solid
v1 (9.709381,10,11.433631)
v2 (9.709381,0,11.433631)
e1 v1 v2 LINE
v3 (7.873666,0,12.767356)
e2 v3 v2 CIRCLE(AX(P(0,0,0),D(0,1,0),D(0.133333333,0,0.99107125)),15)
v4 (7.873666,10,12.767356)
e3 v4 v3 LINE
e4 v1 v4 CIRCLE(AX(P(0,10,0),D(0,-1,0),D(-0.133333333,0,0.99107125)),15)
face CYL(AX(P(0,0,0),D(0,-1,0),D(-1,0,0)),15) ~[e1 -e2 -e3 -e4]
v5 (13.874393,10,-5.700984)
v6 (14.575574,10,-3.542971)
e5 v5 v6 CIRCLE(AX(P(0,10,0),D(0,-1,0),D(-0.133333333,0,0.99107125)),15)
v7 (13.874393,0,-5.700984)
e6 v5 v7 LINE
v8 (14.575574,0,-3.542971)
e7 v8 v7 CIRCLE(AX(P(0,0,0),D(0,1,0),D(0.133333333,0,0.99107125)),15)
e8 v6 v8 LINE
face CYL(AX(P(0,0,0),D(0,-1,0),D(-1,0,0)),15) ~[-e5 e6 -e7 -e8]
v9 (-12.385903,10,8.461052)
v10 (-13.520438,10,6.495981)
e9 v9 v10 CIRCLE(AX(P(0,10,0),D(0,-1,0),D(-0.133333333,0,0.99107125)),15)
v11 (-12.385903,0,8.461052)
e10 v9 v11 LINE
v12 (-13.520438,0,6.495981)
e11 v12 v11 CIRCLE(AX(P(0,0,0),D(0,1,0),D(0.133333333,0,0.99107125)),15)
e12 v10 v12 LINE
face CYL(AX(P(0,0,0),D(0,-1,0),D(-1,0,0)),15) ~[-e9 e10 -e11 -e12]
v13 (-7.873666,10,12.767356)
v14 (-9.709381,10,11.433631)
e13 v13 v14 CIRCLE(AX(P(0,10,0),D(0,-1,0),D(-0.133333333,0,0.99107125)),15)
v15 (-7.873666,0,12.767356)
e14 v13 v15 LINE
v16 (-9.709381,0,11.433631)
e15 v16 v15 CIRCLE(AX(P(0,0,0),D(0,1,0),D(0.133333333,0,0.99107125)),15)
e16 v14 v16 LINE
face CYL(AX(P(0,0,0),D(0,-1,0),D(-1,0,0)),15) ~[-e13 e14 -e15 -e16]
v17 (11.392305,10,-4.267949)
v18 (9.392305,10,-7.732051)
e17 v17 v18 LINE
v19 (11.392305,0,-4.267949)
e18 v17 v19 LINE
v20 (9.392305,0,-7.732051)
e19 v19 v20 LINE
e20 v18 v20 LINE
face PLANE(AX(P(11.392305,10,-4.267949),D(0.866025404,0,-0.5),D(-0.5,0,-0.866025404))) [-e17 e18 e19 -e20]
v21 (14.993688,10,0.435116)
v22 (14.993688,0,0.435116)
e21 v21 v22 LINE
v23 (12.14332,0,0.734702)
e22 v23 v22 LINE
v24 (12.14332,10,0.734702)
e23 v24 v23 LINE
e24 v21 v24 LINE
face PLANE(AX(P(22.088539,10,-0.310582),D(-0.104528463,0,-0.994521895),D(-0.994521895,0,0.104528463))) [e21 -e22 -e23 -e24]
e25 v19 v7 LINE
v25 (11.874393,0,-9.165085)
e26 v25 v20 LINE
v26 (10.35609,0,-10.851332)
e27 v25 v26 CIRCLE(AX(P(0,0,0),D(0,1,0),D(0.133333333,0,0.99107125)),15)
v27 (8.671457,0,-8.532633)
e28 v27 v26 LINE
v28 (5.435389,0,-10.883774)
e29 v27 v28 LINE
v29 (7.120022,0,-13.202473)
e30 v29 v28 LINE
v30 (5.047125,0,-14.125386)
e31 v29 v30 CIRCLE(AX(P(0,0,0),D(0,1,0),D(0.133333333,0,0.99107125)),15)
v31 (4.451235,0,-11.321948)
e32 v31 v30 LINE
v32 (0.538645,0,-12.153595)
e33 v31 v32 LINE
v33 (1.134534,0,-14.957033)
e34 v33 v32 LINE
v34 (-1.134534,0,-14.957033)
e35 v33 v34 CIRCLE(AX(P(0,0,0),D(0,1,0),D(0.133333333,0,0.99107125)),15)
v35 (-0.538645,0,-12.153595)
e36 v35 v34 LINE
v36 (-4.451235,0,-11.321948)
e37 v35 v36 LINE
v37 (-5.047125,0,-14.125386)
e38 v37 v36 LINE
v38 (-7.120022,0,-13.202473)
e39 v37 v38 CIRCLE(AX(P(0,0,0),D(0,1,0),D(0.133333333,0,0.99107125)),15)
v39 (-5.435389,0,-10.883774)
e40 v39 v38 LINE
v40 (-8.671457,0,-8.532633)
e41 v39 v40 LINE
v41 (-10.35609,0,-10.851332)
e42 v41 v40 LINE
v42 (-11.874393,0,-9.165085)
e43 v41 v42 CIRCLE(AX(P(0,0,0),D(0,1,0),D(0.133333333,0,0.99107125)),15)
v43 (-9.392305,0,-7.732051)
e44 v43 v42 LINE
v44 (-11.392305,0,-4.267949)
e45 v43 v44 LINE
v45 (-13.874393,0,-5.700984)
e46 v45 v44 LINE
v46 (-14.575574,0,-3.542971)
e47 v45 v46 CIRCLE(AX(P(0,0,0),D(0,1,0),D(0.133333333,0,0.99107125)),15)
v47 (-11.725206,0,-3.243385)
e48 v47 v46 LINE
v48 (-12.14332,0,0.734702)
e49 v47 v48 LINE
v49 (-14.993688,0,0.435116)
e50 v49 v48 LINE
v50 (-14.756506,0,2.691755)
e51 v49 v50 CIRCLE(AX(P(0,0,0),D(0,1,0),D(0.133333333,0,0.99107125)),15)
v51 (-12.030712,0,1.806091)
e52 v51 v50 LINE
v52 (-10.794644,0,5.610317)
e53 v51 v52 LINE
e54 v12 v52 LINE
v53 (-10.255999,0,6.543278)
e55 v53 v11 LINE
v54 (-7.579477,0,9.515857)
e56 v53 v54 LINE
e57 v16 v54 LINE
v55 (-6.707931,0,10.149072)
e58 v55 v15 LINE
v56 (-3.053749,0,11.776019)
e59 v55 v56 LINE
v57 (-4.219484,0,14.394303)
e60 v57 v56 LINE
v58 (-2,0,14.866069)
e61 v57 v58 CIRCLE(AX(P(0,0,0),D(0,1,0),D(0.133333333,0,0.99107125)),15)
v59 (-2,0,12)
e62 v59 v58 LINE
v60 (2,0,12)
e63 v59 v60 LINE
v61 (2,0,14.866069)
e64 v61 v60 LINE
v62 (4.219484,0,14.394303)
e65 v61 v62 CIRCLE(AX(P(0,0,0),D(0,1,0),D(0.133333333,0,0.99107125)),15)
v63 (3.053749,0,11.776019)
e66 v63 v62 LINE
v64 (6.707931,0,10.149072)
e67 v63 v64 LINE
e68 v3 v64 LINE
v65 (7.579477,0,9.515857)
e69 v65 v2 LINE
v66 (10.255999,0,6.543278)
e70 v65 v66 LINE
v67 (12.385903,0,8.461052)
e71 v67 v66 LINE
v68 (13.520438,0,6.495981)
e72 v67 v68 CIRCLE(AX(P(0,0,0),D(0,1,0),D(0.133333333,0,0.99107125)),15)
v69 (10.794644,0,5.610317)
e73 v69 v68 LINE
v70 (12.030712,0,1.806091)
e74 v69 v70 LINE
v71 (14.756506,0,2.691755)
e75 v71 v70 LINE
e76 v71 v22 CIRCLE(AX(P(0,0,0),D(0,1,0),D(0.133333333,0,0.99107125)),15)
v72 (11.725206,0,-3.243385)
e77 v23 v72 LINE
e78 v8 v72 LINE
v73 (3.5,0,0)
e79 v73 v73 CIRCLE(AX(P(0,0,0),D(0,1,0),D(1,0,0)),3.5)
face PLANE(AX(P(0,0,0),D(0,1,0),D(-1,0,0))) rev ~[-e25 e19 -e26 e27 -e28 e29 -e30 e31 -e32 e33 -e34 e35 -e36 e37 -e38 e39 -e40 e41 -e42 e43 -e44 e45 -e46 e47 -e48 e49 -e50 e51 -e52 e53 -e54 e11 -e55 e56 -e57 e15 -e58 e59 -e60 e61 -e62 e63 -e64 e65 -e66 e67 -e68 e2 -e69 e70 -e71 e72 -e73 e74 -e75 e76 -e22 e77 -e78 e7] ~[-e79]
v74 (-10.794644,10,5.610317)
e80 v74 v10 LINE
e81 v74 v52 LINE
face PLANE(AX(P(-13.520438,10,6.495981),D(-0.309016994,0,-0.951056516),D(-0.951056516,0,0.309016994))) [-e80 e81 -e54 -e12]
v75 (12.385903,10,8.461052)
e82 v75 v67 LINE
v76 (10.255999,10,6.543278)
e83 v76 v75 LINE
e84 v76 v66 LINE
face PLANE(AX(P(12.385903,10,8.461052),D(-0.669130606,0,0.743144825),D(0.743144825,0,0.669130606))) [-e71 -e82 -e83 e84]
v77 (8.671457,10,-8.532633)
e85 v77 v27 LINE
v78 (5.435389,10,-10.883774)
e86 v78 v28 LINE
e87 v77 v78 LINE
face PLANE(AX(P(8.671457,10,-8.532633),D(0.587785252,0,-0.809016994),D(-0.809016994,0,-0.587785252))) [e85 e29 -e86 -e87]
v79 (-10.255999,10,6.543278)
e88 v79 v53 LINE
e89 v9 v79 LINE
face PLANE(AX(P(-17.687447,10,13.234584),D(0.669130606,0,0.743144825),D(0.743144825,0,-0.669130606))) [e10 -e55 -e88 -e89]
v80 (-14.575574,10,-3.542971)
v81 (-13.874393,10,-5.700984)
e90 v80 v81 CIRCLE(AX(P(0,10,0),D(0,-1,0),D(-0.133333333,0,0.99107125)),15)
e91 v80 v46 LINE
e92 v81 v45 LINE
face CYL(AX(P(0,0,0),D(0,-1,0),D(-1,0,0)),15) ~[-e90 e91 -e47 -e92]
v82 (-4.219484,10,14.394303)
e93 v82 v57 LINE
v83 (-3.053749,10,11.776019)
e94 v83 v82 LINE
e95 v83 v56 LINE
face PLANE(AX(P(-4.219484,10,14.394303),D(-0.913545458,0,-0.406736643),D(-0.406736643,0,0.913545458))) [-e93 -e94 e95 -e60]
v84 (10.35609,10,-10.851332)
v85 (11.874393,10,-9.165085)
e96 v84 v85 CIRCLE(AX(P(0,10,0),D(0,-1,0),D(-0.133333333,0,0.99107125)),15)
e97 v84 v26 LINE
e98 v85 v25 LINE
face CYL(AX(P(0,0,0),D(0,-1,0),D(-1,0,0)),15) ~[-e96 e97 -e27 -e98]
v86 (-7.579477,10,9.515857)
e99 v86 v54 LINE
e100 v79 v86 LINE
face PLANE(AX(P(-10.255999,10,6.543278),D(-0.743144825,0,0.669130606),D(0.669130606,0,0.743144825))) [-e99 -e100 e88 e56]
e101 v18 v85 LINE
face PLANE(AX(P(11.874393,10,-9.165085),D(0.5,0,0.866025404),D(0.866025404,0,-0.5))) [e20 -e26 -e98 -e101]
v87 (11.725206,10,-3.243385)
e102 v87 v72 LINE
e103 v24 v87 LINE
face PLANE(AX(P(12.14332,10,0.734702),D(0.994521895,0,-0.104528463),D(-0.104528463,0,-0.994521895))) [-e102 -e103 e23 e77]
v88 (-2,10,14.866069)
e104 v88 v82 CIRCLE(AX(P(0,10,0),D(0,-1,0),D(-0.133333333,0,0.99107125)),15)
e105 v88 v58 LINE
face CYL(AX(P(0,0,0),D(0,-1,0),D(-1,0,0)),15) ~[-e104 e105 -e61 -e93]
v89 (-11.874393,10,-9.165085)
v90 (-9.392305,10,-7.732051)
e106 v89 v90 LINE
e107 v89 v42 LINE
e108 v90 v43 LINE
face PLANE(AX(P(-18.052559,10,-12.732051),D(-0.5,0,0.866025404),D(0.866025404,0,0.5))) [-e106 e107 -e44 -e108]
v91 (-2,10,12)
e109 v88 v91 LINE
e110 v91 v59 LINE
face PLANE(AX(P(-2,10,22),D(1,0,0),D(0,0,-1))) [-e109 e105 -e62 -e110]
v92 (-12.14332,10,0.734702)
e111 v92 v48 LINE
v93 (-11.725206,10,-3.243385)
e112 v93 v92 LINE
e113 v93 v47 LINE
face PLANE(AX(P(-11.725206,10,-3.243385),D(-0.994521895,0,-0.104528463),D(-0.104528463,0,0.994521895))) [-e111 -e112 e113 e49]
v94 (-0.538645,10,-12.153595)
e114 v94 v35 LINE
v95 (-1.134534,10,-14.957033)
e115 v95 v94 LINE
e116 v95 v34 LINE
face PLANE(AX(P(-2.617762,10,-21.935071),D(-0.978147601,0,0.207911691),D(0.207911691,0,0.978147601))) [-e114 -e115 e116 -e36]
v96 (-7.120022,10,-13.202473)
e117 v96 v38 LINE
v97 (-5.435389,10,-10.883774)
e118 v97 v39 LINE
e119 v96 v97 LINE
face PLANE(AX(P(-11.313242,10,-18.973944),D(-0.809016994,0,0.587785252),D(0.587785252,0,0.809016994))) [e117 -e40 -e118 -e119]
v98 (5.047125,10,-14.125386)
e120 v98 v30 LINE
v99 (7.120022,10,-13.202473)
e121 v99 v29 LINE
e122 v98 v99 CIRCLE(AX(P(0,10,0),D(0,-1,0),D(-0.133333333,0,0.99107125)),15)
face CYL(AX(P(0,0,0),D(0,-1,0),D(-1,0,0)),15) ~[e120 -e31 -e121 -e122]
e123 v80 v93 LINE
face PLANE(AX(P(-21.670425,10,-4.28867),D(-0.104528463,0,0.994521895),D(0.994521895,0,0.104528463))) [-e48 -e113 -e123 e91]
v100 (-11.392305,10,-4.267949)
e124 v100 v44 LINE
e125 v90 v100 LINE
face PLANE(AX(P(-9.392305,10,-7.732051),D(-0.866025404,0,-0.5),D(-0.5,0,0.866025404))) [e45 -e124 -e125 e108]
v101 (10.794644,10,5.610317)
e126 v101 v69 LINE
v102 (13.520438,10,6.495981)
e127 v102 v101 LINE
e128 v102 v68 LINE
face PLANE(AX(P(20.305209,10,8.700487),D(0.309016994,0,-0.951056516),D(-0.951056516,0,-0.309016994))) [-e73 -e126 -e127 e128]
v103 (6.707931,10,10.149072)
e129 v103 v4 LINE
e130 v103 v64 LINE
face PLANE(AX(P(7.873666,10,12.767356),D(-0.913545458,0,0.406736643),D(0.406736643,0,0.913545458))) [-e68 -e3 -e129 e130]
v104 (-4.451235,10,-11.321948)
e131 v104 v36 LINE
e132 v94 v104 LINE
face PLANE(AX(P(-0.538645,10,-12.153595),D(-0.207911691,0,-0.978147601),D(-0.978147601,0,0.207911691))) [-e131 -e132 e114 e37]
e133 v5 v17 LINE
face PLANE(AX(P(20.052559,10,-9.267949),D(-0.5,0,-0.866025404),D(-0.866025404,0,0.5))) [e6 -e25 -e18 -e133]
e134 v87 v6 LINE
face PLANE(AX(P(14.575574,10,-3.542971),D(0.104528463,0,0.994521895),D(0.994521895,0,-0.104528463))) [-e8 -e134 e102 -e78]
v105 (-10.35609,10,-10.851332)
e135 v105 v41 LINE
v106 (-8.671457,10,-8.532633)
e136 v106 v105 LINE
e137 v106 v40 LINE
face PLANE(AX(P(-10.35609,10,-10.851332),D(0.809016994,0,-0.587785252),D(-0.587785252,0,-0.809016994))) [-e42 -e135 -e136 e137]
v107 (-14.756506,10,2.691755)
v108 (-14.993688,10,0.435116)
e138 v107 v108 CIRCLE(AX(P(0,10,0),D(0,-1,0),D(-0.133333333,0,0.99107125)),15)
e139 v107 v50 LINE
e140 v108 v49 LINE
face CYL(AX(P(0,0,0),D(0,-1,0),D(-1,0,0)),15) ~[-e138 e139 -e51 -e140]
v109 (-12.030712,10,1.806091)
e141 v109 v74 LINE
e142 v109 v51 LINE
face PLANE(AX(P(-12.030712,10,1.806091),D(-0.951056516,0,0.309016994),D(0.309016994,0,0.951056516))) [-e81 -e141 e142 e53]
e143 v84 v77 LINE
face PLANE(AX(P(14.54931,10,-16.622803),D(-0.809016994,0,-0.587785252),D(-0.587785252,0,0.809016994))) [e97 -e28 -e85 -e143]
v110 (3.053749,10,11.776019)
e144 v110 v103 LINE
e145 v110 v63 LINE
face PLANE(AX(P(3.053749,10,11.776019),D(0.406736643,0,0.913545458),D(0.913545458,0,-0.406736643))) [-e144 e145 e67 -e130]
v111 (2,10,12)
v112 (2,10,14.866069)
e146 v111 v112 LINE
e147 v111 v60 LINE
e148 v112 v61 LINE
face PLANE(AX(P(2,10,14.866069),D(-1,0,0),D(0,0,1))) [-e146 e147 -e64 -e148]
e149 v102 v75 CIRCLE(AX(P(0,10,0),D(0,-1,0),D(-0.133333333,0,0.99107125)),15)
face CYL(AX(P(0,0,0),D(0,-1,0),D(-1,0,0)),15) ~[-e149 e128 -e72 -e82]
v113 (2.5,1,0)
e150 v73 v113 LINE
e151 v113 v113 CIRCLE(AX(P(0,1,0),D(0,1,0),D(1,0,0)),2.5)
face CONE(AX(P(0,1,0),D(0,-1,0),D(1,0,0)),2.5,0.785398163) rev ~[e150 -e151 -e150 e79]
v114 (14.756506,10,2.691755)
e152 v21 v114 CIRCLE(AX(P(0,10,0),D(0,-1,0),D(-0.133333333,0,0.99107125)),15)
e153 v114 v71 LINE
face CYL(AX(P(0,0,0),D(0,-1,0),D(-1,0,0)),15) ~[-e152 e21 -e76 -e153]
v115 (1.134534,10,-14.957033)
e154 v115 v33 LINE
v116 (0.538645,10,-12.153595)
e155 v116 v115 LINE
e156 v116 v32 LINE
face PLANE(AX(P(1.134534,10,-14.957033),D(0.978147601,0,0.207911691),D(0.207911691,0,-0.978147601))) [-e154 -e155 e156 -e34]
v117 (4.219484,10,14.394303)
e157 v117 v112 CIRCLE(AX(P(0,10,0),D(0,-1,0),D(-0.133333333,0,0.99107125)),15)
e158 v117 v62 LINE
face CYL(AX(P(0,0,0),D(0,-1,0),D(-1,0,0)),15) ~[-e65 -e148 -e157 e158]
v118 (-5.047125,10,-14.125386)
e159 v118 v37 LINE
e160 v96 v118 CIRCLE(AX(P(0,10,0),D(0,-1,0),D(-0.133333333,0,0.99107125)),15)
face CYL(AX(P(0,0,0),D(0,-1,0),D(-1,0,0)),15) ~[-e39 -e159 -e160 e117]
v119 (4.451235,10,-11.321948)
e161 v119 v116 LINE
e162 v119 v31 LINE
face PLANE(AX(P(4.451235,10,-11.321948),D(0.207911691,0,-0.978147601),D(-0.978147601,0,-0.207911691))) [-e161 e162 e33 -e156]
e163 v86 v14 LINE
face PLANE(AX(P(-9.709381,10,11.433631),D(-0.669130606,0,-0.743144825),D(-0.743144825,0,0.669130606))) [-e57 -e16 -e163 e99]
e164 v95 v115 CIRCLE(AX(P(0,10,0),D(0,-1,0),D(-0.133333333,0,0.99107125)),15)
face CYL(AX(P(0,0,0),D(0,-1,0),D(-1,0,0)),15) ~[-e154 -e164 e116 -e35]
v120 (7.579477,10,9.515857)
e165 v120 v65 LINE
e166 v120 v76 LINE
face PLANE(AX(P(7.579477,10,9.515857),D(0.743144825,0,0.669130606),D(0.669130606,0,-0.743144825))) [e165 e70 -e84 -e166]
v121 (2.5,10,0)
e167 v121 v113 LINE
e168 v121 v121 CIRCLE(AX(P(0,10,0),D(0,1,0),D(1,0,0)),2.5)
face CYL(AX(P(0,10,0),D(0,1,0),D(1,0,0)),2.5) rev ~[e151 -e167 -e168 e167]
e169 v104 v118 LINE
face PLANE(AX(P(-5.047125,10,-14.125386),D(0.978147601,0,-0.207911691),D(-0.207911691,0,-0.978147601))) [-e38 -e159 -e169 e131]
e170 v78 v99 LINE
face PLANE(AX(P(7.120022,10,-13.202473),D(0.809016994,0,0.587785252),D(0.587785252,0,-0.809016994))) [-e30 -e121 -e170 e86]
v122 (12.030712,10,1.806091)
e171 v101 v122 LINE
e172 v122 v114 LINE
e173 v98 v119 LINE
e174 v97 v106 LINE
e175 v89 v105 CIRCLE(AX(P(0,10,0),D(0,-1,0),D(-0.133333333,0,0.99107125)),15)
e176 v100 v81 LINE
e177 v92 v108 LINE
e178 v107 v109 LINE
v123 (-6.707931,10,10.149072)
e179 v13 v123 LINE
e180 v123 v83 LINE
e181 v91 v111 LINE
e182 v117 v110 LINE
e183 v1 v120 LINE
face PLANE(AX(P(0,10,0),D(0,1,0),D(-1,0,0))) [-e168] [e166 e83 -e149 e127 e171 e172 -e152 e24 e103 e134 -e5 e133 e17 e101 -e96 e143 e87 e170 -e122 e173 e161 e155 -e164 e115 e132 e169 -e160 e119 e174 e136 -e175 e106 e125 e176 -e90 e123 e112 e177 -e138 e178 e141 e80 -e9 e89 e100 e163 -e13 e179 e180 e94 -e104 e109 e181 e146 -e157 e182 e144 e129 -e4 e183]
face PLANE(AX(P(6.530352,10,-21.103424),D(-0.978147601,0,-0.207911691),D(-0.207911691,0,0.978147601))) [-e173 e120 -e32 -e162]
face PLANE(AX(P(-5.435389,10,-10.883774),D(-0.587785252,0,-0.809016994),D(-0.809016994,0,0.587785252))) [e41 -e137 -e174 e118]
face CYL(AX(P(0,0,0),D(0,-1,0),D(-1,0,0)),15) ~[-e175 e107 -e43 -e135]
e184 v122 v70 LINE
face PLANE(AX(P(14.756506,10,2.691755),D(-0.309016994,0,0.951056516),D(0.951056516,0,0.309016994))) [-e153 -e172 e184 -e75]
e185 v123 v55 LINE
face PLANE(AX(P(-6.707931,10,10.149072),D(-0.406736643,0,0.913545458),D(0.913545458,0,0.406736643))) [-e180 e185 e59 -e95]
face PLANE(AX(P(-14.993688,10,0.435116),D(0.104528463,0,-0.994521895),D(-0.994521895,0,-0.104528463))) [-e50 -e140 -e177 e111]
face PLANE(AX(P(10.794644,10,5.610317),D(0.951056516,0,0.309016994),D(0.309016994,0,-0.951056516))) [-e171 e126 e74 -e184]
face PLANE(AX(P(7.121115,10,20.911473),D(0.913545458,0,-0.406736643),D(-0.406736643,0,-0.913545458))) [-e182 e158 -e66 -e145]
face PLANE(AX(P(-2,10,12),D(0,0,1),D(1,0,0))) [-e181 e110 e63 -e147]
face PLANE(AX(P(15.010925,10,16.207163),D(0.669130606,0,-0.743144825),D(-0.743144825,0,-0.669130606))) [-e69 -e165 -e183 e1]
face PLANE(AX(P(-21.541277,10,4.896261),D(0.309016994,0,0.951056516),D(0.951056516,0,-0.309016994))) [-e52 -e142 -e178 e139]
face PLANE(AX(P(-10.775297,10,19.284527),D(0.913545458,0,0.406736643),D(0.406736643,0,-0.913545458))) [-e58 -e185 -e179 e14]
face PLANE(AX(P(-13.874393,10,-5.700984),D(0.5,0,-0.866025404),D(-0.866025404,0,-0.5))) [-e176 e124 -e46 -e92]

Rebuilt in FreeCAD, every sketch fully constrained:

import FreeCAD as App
import Part
import Sketcher
Q = App.Units.Quantity


def edges_at(feature, points):
    """Names of the edges that pass closest to the given points."""
    edges = feature.Shape.Edges
    near = lambda p: min(range(len(edges)), key=lambda i: edges[i].distToShape(Part.Vertex(*p))[0])
    return sorted({f"Edge{near(p) + 1}" for p in points})

doc = App.newDocument("Part")
body = doc.addObject("PartDesign::Body", "Body")

# Sketch on XZ plane
sketch1 = body.newObject("Sketcher::SketchObject", "Sketch")
sketch1.AttachmentSupport = (doc.getObject("XZ_Plane"), [""])
sketch1.MapMode = "FlatFace"
sketch1.addGeometry(Part.Circle(App.Vector(0, 0, 0), App.Vector(0, 0, 1), 15), False)
sketch1.addConstraint(Sketcher.Constraint("Coincident", 0, 3, -1, 1))
sketch1.addConstraint(Sketcher.Constraint("Diameter", 0, Q("30 mm")))
pad1 = body.newObject("PartDesign::Pad", "Pad")
pad1.Profile = sketch1
pad1.Length = 10
pad1.Reversed = True

# Sketch on XZ plane
sketch2 = body.newObject("Sketcher::SketchObject", "Sketch001")
sketch2.AttachmentSupport = (doc.getObject("XZ_Plane"), [""])
sketch2.MapMode = "FlatFace"
sketch2.AttachmentOffset = App.Placement(App.Vector(0, 0, -10), App.Rotation())
sketch2.addGeometry(Part.LineSegment(App.Vector(-2, 22, 0), App.Vector(2, 22, 0)), False)
sketch2.addGeometry(Part.LineSegment(App.Vector(2, 22, 0), App.Vector(2, 12, 0)), False)
sketch2.addGeometry(Part.LineSegment(App.Vector(2, 12, 0), App.Vector(-2, 12, 0)), False)
sketch2.addGeometry(Part.LineSegment(App.Vector(-2, 12, 0), App.Vector(-2, 22, 0)), False)
sketch2.addConstraint(Sketcher.Constraint("Coincident", 0, 2, 1, 1))
sketch2.addConstraint(Sketcher.Constraint("Coincident", 1, 2, 2, 1))
sketch2.addConstraint(Sketcher.Constraint("Coincident", 2, 2, 3, 1))
sketch2.addConstraint(Sketcher.Constraint("Coincident", 3, 2, 0, 1))
sketch2.addConstraint(Sketcher.Constraint("Horizontal", 0))
sketch2.addConstraint(Sketcher.Constraint("Vertical", 1))
sketch2.addConstraint(Sketcher.Constraint("Horizontal", 2))
sketch2.addConstraint(Sketcher.Constraint("Vertical", 3))
sketch2.addConstraint(Sketcher.Constraint("DistanceX", 0, 1, 0, 2, Q("4 mm")))
sketch2.addConstraint(Sketcher.Constraint("DistanceY", 1, 2, 1, 1, Q("10 mm")))
sketch2.addConstraint(Sketcher.Constraint("DistanceY", -1, 1, 1, 2, Q("12 mm")))
sketch2.addConstraint(Sketcher.Constraint("DistanceX", -1, 1, 0, 2, Q("2 mm")))
pocket1 = body.newObject("PartDesign::Pocket", "Pocket")
pocket1.Profile = sketch2
pocket1.Length = 10
pocket1.Reversed = True
doc.recompute()

polarpattern = body.newObject("PartDesign::PolarPattern", "PolarPattern")
polarpattern.Originals = [pocket1]
polarpattern.Axis = (doc.getObject("Y_Axis"), [""])
polarpattern.Angle = 360
polarpattern.Occurrences = 15
body.Tip = polarpattern

# Sketch on XZ plane
sketch3 = body.newObject("Sketcher::SketchObject", "Sketch002")
sketch3.AttachmentSupport = (doc.getObject("XZ_Plane"), [""])
sketch3.MapMode = "FlatFace"
sketch3.AttachmentOffset = App.Placement(App.Vector(0, 0, -10), App.Rotation())
sketch3.addGeometry(Part.Circle(App.Vector(0, 0, 0), App.Vector(0, 0, 1), 2.5), False)
sketch3.addConstraint(Sketcher.Constraint("Coincident", 0, 3, -1, 1))
sketch3.addConstraint(Sketcher.Constraint("Diameter", 0, Q("5 mm")))
pocket2 = body.newObject("PartDesign::Pocket", "Pocket001")
pocket2.Profile = sketch3
pocket2.Length = 10
pocket2.Reversed = True
doc.recompute()

chamfer = body.newObject("PartDesign::Chamfer", "Chamfer")
chamfer.Base = (pocket2, edges_at(pocket2, [(-2.5, 0, 0)]))
chamfer.Size = 1

doc.recompute()
